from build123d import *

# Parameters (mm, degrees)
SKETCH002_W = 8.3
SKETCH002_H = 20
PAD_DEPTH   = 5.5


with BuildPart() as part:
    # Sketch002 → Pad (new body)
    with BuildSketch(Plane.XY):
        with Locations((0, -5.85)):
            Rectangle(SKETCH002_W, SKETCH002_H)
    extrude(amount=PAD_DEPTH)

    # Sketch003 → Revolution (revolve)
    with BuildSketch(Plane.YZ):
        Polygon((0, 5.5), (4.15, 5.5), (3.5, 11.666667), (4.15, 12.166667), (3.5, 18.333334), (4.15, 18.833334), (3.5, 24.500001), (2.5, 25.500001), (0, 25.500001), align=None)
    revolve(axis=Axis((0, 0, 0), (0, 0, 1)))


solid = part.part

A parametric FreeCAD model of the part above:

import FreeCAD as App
import Part
import Sketcher
Q = App.Units.Quantity


def add_polygon(sketch, points):
    """Adds a closed chain of lines whose ends are joined by coincident constraints."""
    first, n = sketch.GeometryCount, len(points)
    for a, b in zip(points, points[1:] + points[:1]):
        sketch.addGeometry(Part.LineSegment(App.Vector(*a, 0), App.Vector(*b, 0)), False)
    for i in range(n):
        sketch.addConstraint(Sketcher.Constraint("Coincident", first + i, 2, first + (i + 1) % n, 1))

doc = App.newDocument("Part")
body = doc.addObject("PartDesign::Body", "Body")

# Sketch on XY plane
sketch1 = body.newObject("Sketcher::SketchObject", "Sketch")
sketch1.AttachmentSupport = (doc.getObject("XY_Plane"), [""])
sketch1.MapMode = "FlatFace"
add_polygon(sketch1, [(-4, 4), (-4, -16), (4, -16), (4, 4)])  # lines 0-3
sketch1.addConstraint([
    Sketcher.Constraint("Vertical", 0),
    Sketcher.Constraint("Horizontal", 1),
    Sketcher.Constraint("Vertical", 2),
    Sketcher.Constraint("Horizontal", 3),
    Sketcher.Constraint("DistanceY", 0, 2, 0, 1, Q("20 mm")),
    Sketcher.Constraint("DistanceX", 1, 1, 1, 2, Q("8.3 mm")),
    Sketcher.Constraint("DistanceX", 0, 2, -1, 1, Q("4.15 mm")),
    Sketcher.Constraint("DistanceY", 0, 2, -1, 1, Q("15.85 mm")),
])
pad1 = body.newObject("PartDesign::Pad", "Pad")
pad1.Profile = sketch1
pad1.Length = 5.5

# Sketch on YZ plane
sketch2 = body.newObject("Sketcher::SketchObject", "Sketch001")
sketch2.AttachmentSupport = (doc.getObject("YZ_Plane"), [""])
sketch2.MapMode = "FlatFace"
add_polygon(sketch2, [(0, 5.5), (4.2, 5.5), (3.5, 11.7), (4.2, 12.2), (3.5, 18.3), (4.2, 18.8), (3.5, 24.5), (2.5, 25.5), (0, 25.5)])  # lines 0-8
sketch2.addConstraint([
    Sketcher.Constraint("Horizontal", 0),
    Sketcher.Constraint("Horizontal", 7),
    Sketcher.Constraint("Vertical", 8),
    Sketcher.Constraint("PointOnObject", 7, 2, -2),
    Sketcher.Constraint("Parallel", 1, 3),
    Sketcher.Constraint("Parallel", 2, 4),
    Sketcher.Constraint("Vertical", 0, 2, 2, 2),
    Sketcher.Constraint("Vertical", 1, 2, 3, 2),
    Sketcher.Constraint("Vertical", 2, 2, 4, 2),
    Sketcher.Constraint("Vertical", 3, 2, 5, 2),
    Sketcher.Constraint("DistanceY", 8, 2, 8, 1, Q("20.000001 mm")),
    Sketcher.Constraint("Angle", 6, Q("135 deg")),
    Sketcher.Constraint("DistanceX", 7, 2, 7, 1, Q("2.5 mm")),
    Sketcher.Constraint("DistanceY", 0, 2, 5, 2, Q("19.000001 mm")),
    Sketcher.Constraint("DistanceX", 0, 1, 0, 2, Q("4.15 mm")),
    Sketcher.Constraint("DistanceY", -1, 1, 0, 2, Q("5.5 mm")),
    Sketcher.Constraint("DistanceY", 1, 2, 2, 2, Q("0.5 mm")),
    Sketcher.Constraint("Distance", 1, Q("6.200829 mm")),
])
revolution = body.newObject("PartDesign::Revolution", "Revolution")
revolution.Profile = sketch2
revolution.ReferenceAxis = (sketch2, ["V_Axis"])
revolution.Angle = 360

doc.recompute()
